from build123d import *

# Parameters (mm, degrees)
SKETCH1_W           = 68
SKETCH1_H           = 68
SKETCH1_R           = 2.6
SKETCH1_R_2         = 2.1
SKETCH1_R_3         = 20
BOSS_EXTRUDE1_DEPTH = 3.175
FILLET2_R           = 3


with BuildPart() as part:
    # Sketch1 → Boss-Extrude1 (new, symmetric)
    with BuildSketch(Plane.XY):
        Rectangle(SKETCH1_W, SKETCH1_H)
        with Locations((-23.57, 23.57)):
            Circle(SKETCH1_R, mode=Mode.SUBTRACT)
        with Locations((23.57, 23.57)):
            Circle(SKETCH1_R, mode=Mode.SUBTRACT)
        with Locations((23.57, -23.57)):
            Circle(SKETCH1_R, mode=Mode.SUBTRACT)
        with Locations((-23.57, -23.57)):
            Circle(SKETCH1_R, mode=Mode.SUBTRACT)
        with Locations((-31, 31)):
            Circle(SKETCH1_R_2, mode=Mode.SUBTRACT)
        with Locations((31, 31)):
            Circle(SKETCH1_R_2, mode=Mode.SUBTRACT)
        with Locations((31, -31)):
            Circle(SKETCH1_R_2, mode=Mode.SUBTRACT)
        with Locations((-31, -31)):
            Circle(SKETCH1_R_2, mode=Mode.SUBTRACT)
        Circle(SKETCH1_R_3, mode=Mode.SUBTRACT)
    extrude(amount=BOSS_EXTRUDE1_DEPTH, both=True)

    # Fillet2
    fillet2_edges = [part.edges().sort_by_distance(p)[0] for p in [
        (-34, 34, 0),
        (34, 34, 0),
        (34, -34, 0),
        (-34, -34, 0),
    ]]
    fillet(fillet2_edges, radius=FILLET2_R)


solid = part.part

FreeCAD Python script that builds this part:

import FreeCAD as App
import Part
import Sketcher


def edges_at(feature, points):
    """Names of the edges that pass closest to the given points."""
    edges = feature.Shape.Edges
    near = lambda p: min(range(len(edges)), key=lambda i: edges[i].distToShape(Part.Vertex(*p))[0])
    return sorted({f"Edge{near(p) + 1}" for p in points})


def add_polygon(sketch, points):
    """Adds a closed chain of lines whose ends are joined by coincident constraints."""
    first, n = sketch.GeometryCount, len(points)
    for a, b in zip(points, points[1:] + points[:1]):
        sketch.addGeometry(Part.LineSegment(App.Vector(*a, 0), App.Vector(*b, 0)), False)
    for i in range(n):
        sketch.addConstraint(Sketcher.Constraint("Coincident", first + i, 2, first + (i + 1) % n, 1))

doc = App.newDocument("Part")
body = doc.addObject("PartDesign::Body", "Body")

# Sketch on XY plane
sketch1 = doc.addObject("Sketcher::SketchObject", "Sketch")
body.addObject(sketch1)
sketch1.AttachmentSupport = (doc.XY_Plane, [""])
sketch1.MapMode = "FlatFace"
add_polygon(sketch1, [(-34, 34), (-34, -34), (34, -34), (34, 34)])  # lines 0-3
sketch1.addGeometry(Part.Circle(App.Vector(-31, -31, 0), App.Vector(0, 0, 1), 2.1), False)  # 4
sketch1.addGeometry(Part.Circle(App.Vector(-23.6, -23.6, 0), App.Vector(0, 0, 1), 2.6), False)  # 5
sketch1.addGeometry(Part.Circle(App.Vector(31, -31, 0), App.Vector(0, 0, 1), 2.1), False)  # 6
sketch1.addGeometry(Part.Circle(App.Vector(23.6, -23.6, 0), App.Vector(0, 0, 1), 2.6), False)  # 7
sketch1.addGeometry(Part.Circle(App.Vector(-23.6, 23.6, 0), App.Vector(0, 0, 1), 2.6), False)  # 8
sketch1.addGeometry(Part.Circle(App.Vector(-31, 31, 0), App.Vector(0, 0, 1), 2.1), False)  # 9
sketch1.addGeometry(Part.Circle(App.Vector(0, 0, 0), App.Vector(0, 0, 1), 20), False)  # 10
sketch1.addGeometry(Part.Circle(App.Vector(23.6, 23.6, 0), App.Vector(0, 0, 1), 2.6), False)  # 11
sketch1.addGeometry(Part.Circle(App.Vector(31, 31, 0), App.Vector(0, 0, 1), 2.1), False)  # 12
sketch1.addConstraint(Sketcher.Constraint("Vertical", 0))
sketch1.addConstraint(Sketcher.Constraint("Horizontal", 1))
sketch1.addConstraint(Sketcher.Constraint("Vertical", 2))
sketch1.addConstraint(Sketcher.Constraint("Horizontal", 3))
sketch1.addConstraint(Sketcher.Constraint("Coincident", 10, 3, -1, 1))
sketch1.addConstraint(Sketcher.Constraint("Equal", 4, 6))
sketch1.addConstraint(Sketcher.Constraint("Equal", 5, 7))
sketch1.addConstraint(Sketcher.Constraint("Equal", 7, 8))
sketch1.addConstraint(Sketcher.Constraint("Equal", 6, 9))
sketch1.addConstraint(Sketcher.Constraint("Equal", 8, 11))
sketch1.addConstraint(Sketcher.Constraint("Equal", 9, 12))
sketch1.addConstraint(Sketcher.Constraint("Symmetric", 7, 3, 8, 3, -1, 1))
sketch1.addConstraint(Sketcher.Constraint("Symmetric", 6, 3, 9, 3, -1, 1))
sketch1.addConstraint(Sketcher.Constraint("Symmetric", 5, 3, 11, 3, -1, 1))
sketch1.addConstraint(Sketcher.Constraint("Symmetric", 4, 3, 12, 3, -1, 1))
sketch1.addConstraint(Sketcher.Constraint("Symmetric", 0, 2, 2, 2, -1, 1))
sketch1.addConstraint(Sketcher.Constraint("Symmetric", 4, 3, 6, 3, -2))
sketch1.addConstraint(Sketcher.Constraint("Symmetric", 5, 3, 7, 3, -2))
sketch1.addConstraint(Sketcher.Constraint("Equal", 3, 0))
sketch1.addConstraint(Sketcher.Constraint("Diameter", 10, 40.0))
sketch1.addConstraint(Sketcher.Constraint("Diameter", 4, 4.2))
sketch1.addConstraint(Sketcher.Constraint("Diameter", 5, 5.2))
sketch1.addConstraint(Sketcher.Constraint("DistanceX", 1, 1, 1, 2, 68.0))
sketch1.addConstraint(Sketcher.Constraint("DistanceX", 4, 3, -1, 1, 31.0))
sketch1.addConstraint(Sketcher.Constraint("DistanceY", 4, 3, -1, 1, 31.0))
sketch1.addConstraint(Sketcher.Constraint("DistanceX", 5, 3, -1, 1, 23.57))
sketch1.addConstraint(Sketcher.Constraint("DistanceY", 5, 3, -1, 1, 23.57))
pad1 = doc.addObject("PartDesign::Pad", "Pad")
body.addObject(pad1)
pad1.Profile = sketch1
pad1.Length = 6.35
pad1.Midplane = True
doc.recompute()

fillet = doc.addObject("PartDesign::Fillet", "Fillet")
body.addObject(fillet)
fillet.Base = (pad1, edges_at(pad1, [
    (-34, 34, 0),
    (34, 34, 0),
    (34, -34, 0),
    (-34, -34, 0),
]))
fillet.Radius = 3

doc.recompute()
